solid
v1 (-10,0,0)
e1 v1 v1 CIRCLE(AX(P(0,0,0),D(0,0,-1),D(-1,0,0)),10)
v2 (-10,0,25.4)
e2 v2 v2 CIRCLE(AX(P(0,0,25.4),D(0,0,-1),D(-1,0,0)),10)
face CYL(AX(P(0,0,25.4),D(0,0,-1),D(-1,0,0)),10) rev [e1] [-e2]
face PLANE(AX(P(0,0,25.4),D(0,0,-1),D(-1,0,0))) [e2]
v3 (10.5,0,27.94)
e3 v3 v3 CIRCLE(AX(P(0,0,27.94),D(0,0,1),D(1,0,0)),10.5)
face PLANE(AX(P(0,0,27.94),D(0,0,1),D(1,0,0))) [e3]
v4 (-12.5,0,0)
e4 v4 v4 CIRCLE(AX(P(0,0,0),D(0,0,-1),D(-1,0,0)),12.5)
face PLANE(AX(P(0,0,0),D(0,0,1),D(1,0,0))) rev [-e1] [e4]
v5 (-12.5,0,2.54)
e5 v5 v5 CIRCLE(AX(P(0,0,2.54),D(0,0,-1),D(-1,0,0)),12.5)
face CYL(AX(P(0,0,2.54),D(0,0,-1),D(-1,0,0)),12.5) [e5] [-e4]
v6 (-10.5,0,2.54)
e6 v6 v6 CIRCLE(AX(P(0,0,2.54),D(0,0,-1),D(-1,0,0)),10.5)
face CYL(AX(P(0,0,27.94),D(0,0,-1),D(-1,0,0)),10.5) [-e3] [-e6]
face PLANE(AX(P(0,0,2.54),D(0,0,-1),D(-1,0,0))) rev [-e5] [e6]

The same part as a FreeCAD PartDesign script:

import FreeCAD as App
import Part
import Sketcher

V = App.Vector
Q = App.Units.Quantity

doc = App.newDocument("Part")
body = doc.addObject("PartDesign::Body", "Body")

# Sketch on XY plane
sketch1 = body.newObject("Sketcher::SketchObject", "Sketch")
sketch1.AttachmentSupport = (doc.getObject("XY_Plane"), [""])
sketch1.MapMode = "FlatFace"
sketch1.addGeometry(Part.Circle(V(0, 0, 0), V(0, 0, 1), 10.5), False)
sketch1.addConstraint([
    Sketcher.Constraint("Coincident", 0, 3, -1, 1),
    Sketcher.Constraint("Diameter", 0, Q("21 mm")),
])
pad1 = body.newObject("PartDesign::Pad", "Pad")
pad1.Profile = sketch1
pad1.Length = 27.94

# Sketch on XY plane
sketch2 = body.newObject("Sketcher::SketchObject", "Sketch001")
sketch2.AttachmentSupport = (doc.getObject("XY_Plane"), [""])
sketch2.MapMode = "FlatFace"
sketch2.addGeometry(Part.Circle(V(0, 0, 0), V(0, 0, 1), 12.5), False)
sketch2.addConstraint([
    Sketcher.Constraint("Coincident", 0, 3, -1, 1),
    Sketcher.Constraint("Diameter", 0, Q("25 mm")),
])
pad2 = body.newObject("PartDesign::Pad", "Pad001")
pad2.Profile = sketch2
pad2.Length = 2.54

# Sketch on XY plane
sketch3 = body.newObject("Sketcher::SketchObject", "Sketch002")
sketch3.AttachmentSupport = (doc.getObject("XY_Plane"), [""])
sketch3.MapMode = "FlatFace"
sketch3.addGeometry(Part.Circle(V(0, 0, 0), V(0, 0, 1), 10), False)
sketch3.addConstraint([
    Sketcher.Constraint("Coincident", 0, 3, -1, 1),
    Sketcher.Constraint("Diameter", 0, Q("20 mm")),
])
pocket1 = body.newObject("PartDesign::Pocket", "Pocket")
pocket1.Profile = sketch3
pocket1.Length = 25.4
pocket1.Reversed = True

doc.recompute()
